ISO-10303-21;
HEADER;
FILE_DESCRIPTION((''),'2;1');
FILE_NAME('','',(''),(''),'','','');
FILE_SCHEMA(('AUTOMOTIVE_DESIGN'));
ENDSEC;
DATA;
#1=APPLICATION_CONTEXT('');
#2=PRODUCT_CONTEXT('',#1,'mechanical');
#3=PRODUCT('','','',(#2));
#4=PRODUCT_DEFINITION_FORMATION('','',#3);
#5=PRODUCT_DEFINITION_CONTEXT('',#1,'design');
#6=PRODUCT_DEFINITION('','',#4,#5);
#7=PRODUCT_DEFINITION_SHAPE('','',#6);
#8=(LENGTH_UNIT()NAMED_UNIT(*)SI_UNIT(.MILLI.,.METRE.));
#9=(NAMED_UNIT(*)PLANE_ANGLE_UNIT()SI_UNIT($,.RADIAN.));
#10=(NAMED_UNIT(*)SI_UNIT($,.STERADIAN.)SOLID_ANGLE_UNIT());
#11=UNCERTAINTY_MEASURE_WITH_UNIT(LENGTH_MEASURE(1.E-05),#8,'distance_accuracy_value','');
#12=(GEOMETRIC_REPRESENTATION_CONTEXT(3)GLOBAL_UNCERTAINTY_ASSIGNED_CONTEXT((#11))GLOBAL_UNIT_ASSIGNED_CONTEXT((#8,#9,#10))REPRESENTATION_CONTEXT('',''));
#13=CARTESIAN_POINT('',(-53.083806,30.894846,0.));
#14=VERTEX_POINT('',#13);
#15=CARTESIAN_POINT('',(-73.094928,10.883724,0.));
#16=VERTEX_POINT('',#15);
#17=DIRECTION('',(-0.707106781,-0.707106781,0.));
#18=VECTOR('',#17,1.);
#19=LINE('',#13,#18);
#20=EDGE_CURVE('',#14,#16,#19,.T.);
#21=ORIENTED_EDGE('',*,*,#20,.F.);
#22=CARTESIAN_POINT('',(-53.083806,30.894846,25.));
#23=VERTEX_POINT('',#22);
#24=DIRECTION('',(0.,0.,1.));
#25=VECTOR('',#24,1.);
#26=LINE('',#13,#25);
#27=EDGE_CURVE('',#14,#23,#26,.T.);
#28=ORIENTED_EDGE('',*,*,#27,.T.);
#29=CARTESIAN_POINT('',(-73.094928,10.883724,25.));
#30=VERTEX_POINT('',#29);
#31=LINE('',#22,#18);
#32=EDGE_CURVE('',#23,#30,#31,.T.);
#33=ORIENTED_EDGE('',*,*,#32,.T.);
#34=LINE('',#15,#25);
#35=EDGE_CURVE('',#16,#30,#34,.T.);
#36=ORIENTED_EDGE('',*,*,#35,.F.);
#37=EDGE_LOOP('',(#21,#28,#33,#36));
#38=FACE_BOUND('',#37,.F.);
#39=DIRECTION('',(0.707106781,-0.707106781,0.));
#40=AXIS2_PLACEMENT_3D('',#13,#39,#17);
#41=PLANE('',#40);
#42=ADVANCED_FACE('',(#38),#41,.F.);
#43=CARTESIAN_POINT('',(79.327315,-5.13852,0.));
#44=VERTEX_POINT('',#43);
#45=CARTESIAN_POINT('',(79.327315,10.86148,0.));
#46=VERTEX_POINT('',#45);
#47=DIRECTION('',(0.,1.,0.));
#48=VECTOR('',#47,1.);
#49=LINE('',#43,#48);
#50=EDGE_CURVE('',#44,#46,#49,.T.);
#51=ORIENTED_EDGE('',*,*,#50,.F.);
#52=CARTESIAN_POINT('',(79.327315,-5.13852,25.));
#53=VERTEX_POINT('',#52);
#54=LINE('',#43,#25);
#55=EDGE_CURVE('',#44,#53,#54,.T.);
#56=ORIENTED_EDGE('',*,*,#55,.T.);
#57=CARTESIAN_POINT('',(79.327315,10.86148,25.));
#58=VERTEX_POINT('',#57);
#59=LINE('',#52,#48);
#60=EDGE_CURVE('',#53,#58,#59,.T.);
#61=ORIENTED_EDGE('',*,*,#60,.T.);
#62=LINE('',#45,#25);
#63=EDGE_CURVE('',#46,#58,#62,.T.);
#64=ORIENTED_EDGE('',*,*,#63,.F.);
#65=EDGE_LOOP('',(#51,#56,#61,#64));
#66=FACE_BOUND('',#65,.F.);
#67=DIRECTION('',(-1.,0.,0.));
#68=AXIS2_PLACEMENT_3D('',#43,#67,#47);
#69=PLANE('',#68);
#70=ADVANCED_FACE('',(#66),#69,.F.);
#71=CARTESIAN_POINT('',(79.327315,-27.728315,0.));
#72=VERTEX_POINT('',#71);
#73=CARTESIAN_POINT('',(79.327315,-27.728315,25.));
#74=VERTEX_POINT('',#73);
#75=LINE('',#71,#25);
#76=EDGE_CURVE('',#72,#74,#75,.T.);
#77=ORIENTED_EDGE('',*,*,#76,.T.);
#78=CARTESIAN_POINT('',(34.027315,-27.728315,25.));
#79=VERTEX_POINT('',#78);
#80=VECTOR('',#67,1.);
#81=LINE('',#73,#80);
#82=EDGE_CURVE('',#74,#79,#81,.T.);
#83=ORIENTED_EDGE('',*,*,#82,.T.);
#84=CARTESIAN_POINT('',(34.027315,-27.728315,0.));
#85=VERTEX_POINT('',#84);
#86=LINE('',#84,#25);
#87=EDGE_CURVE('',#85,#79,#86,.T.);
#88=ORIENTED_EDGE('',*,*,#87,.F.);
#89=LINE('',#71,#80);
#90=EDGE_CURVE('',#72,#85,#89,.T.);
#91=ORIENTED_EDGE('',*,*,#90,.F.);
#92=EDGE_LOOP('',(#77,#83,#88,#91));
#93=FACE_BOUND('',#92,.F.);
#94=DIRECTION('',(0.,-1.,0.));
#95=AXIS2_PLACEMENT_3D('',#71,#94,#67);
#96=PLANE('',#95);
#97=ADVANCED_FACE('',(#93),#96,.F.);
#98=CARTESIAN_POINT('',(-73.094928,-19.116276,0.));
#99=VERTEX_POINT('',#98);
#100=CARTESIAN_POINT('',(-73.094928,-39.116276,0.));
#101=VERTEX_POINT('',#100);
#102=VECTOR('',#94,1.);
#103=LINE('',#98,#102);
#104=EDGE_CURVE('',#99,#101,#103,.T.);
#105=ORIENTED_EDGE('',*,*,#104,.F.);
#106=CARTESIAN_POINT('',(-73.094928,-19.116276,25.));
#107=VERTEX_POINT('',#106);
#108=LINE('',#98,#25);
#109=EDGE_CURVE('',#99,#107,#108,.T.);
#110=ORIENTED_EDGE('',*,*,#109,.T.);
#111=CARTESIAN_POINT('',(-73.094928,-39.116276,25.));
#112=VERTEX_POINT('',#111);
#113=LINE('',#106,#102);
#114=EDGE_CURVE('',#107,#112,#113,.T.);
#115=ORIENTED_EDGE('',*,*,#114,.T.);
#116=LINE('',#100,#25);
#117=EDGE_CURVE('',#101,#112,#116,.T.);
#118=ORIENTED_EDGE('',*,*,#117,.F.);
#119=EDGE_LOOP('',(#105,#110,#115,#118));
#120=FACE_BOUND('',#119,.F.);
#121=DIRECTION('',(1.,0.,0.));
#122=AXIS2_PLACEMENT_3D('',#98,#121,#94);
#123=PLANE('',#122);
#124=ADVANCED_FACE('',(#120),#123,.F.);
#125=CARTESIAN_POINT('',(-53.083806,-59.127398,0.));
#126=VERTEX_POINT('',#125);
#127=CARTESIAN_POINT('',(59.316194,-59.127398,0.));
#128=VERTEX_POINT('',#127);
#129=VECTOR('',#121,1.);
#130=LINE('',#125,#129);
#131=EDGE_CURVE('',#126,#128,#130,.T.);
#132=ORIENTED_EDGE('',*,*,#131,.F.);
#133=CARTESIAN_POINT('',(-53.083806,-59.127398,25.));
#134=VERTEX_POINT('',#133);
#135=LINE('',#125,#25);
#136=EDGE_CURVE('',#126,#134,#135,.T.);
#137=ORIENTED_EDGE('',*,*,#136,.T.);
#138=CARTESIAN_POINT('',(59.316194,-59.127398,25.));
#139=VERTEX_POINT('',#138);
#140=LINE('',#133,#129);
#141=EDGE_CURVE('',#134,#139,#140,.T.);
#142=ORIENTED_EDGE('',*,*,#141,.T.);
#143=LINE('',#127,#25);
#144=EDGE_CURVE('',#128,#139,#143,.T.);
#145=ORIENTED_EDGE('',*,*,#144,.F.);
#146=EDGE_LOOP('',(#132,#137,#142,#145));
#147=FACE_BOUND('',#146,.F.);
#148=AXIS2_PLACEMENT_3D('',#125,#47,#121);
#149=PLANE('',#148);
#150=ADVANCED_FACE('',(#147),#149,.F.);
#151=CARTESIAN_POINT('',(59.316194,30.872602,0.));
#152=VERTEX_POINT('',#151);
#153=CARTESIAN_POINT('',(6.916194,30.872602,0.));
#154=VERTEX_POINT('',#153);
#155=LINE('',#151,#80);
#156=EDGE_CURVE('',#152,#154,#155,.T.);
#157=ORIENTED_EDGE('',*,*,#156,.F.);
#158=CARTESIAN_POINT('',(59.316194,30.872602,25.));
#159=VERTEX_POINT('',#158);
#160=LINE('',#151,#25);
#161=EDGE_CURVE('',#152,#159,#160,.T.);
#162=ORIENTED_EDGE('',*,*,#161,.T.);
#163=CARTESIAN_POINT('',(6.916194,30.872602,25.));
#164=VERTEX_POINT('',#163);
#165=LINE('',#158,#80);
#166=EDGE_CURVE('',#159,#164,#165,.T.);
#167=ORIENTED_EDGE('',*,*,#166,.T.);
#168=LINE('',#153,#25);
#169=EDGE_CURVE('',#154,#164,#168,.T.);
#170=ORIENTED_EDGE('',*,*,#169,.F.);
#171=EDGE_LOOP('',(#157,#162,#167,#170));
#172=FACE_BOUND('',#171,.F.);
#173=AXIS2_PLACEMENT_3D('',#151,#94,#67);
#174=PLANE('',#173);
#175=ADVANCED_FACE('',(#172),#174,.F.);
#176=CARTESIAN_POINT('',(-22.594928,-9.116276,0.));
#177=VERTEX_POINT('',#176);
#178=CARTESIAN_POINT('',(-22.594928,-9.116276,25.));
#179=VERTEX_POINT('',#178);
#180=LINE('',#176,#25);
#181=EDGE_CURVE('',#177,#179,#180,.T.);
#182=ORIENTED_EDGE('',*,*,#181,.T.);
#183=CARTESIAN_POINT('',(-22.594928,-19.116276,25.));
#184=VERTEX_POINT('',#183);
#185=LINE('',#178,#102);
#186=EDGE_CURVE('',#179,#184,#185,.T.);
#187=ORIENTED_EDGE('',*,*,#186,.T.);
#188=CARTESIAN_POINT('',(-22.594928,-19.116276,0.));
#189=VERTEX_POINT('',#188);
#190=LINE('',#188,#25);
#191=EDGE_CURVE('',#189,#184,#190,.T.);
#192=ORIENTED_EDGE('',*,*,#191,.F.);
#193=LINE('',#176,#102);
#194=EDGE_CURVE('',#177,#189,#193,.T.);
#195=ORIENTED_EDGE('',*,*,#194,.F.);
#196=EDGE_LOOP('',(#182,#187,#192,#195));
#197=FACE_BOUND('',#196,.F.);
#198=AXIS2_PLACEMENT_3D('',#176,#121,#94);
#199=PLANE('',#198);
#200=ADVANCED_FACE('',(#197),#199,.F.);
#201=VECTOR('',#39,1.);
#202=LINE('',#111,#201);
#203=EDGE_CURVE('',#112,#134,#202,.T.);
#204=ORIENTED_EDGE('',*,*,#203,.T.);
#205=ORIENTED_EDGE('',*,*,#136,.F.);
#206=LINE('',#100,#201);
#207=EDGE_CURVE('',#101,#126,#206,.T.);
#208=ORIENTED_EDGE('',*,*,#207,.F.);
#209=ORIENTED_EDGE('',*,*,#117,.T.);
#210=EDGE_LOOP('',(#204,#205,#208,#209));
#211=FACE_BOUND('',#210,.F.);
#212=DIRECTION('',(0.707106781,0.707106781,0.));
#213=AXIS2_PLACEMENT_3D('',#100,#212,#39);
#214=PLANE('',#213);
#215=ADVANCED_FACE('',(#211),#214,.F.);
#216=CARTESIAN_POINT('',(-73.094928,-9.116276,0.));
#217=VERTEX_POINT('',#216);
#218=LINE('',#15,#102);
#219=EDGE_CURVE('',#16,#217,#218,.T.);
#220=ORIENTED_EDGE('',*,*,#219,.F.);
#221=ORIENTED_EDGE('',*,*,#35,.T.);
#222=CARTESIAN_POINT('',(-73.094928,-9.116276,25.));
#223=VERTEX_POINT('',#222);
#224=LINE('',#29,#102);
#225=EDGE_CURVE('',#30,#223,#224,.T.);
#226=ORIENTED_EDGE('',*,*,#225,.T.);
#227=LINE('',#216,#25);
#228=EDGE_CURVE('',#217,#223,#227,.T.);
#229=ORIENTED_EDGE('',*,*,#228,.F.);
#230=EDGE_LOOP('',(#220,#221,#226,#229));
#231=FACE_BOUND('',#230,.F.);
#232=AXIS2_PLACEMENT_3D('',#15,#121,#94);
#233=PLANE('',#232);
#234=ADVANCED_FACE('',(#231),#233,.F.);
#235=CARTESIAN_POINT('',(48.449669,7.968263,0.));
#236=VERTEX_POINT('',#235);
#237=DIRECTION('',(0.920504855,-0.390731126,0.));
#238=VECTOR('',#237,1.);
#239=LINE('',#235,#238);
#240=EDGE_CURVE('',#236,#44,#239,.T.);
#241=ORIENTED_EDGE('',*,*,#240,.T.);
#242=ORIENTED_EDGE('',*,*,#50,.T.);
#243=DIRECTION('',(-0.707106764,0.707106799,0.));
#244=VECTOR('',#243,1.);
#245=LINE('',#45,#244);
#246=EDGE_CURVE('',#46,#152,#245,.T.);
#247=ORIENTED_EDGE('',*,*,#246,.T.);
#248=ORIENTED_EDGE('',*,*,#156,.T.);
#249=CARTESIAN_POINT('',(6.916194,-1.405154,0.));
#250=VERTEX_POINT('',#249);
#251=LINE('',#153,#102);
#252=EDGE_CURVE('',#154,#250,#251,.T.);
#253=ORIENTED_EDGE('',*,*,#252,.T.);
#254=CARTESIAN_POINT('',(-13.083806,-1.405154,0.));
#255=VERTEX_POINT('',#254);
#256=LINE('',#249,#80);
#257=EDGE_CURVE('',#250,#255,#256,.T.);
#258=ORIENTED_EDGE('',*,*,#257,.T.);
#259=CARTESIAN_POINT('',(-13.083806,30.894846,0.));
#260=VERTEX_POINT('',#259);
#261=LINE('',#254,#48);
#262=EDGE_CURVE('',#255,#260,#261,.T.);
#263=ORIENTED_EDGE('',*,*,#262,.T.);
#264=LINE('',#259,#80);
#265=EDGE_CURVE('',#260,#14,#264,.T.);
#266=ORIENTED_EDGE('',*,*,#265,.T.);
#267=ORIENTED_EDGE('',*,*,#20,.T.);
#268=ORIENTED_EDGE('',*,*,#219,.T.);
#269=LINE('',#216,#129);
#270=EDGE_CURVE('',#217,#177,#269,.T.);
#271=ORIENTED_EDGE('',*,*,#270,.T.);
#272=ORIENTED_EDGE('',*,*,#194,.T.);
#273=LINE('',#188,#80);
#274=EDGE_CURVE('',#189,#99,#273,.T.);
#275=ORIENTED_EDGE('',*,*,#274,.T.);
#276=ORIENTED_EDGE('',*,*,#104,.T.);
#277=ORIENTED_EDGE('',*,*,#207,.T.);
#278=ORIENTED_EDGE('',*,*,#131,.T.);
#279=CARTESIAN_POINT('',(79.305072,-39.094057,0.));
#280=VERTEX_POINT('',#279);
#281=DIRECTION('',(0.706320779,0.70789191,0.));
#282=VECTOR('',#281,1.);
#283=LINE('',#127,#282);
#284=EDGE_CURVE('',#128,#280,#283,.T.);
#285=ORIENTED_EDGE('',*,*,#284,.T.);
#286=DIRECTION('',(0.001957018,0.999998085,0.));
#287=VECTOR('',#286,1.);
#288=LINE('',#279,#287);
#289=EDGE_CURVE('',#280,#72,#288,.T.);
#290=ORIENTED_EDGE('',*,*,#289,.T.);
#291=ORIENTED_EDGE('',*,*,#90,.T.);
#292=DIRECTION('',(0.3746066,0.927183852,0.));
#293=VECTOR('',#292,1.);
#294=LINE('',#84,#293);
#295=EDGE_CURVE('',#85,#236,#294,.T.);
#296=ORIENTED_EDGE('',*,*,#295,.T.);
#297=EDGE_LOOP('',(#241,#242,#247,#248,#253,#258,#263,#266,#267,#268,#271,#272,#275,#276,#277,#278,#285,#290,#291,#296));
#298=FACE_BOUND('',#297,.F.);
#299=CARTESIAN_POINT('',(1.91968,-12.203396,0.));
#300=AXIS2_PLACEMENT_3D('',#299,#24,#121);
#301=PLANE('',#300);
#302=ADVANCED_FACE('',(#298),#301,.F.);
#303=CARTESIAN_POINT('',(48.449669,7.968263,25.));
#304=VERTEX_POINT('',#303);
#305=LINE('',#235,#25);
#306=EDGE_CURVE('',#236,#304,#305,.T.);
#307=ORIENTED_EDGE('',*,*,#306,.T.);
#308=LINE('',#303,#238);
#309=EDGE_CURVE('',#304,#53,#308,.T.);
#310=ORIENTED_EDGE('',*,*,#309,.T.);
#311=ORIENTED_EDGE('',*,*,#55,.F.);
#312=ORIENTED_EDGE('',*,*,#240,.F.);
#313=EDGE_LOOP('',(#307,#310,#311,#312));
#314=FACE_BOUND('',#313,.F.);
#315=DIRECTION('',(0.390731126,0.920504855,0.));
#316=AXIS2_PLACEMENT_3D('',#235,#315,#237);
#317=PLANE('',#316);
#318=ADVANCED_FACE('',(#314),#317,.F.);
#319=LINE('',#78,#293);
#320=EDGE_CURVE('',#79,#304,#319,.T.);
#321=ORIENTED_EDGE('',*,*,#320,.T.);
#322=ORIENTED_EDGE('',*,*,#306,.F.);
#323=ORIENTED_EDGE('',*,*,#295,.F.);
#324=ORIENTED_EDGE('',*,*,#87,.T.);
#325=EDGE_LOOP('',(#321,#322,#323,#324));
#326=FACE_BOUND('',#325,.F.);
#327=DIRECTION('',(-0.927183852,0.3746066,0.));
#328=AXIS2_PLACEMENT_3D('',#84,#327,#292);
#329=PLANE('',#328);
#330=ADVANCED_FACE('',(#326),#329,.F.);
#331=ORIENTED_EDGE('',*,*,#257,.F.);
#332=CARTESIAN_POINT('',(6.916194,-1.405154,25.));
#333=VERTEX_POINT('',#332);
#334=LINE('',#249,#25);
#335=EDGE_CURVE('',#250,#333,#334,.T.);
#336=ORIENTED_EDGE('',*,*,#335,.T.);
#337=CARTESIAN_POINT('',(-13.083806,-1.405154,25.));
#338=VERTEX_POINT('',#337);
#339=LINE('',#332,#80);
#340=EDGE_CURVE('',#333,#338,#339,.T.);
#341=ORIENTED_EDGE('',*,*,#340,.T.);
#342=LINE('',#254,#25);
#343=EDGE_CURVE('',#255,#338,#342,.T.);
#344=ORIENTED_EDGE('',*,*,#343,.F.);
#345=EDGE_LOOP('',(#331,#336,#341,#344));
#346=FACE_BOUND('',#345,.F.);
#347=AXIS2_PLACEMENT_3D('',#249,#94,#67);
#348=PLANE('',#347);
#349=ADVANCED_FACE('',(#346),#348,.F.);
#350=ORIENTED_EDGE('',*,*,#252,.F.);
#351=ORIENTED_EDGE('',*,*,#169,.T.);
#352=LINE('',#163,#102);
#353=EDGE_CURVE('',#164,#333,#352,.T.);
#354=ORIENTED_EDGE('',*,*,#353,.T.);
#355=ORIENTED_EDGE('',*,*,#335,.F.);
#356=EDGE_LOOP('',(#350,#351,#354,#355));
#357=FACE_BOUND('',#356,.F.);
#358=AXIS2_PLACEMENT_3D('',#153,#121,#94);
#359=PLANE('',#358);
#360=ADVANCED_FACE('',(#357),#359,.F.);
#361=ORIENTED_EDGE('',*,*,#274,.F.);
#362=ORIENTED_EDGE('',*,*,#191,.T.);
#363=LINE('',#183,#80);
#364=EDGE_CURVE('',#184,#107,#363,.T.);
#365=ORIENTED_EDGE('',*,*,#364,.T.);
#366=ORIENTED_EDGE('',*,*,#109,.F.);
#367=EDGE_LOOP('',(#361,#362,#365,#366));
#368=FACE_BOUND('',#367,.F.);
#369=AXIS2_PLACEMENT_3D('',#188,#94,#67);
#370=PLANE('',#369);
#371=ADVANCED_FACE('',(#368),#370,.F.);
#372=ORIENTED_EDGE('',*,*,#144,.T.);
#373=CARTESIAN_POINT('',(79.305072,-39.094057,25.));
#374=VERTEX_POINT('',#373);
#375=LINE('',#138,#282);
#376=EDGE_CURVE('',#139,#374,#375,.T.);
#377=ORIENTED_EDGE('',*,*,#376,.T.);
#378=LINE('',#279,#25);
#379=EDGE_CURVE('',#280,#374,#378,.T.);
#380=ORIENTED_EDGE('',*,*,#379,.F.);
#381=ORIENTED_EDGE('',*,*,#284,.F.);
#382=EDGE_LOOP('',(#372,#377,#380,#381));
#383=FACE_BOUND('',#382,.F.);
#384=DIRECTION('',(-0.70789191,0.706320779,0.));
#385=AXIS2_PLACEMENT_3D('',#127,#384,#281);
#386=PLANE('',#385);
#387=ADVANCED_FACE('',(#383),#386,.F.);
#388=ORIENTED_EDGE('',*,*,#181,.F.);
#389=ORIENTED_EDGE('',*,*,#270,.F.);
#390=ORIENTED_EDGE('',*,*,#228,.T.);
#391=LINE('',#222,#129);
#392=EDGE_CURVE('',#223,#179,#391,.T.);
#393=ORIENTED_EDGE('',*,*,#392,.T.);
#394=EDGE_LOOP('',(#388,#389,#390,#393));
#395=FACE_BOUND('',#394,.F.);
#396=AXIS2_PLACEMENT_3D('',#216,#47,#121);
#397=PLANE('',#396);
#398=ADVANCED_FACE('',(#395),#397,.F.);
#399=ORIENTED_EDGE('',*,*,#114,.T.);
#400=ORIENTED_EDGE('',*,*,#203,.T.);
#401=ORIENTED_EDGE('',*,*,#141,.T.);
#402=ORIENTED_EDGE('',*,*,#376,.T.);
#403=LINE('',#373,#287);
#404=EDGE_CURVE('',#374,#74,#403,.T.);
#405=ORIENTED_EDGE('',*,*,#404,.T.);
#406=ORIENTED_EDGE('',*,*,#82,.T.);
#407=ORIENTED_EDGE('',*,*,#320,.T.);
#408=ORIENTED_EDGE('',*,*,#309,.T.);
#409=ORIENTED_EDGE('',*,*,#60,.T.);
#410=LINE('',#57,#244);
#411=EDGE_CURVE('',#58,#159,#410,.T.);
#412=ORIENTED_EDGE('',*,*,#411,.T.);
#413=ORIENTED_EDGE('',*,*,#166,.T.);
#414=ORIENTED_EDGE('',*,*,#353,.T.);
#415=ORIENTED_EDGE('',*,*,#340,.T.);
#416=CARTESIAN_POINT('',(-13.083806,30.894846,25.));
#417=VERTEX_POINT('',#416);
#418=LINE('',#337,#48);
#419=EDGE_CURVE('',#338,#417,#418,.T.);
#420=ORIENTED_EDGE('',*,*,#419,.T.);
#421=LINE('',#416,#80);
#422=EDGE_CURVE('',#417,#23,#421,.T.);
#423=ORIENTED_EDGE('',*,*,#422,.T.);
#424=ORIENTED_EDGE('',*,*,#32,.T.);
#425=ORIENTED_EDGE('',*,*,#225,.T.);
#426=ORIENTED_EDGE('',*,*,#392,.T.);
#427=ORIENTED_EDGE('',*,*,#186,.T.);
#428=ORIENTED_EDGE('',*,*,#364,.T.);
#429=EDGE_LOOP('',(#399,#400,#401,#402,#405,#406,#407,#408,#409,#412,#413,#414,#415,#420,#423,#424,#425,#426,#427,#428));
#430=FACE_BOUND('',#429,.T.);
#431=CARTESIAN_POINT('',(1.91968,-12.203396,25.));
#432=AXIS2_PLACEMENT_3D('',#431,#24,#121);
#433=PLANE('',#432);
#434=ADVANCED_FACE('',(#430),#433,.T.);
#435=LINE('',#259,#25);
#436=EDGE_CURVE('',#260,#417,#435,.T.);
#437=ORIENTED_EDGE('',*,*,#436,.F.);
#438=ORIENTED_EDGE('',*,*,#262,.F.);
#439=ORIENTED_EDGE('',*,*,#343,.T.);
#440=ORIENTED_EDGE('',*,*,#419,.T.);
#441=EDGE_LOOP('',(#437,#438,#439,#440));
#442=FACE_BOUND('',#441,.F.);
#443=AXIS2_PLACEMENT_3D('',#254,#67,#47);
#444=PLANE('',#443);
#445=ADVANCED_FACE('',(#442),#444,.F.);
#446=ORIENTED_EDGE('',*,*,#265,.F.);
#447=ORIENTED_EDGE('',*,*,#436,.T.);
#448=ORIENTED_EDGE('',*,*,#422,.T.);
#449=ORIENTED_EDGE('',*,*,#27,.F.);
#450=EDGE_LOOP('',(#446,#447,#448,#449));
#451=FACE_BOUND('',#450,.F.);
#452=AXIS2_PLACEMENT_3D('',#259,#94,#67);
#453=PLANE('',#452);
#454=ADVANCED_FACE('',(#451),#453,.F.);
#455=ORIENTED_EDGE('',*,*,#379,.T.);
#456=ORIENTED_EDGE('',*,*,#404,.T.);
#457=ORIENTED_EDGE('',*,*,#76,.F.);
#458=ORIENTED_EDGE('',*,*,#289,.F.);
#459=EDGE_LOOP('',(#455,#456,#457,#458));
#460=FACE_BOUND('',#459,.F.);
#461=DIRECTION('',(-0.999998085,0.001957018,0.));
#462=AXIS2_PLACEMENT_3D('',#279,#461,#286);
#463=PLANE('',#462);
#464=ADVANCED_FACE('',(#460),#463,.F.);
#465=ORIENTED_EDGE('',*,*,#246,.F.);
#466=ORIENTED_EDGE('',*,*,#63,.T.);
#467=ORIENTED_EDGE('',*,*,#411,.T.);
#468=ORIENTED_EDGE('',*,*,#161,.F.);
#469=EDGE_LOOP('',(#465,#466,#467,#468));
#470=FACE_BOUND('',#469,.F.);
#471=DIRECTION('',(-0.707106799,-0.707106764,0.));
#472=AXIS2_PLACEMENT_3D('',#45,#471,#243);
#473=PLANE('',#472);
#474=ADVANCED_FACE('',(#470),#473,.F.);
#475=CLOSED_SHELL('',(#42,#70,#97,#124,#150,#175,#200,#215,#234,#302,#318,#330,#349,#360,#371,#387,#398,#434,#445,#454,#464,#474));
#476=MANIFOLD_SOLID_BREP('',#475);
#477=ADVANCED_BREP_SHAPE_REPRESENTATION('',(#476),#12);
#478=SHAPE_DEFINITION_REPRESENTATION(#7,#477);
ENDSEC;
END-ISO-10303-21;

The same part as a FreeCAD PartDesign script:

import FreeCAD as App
import Part
import Sketcher

V = App.Vector
Q = App.Units.Quantity

doc = App.newDocument("Part")
body = doc.addObject("PartDesign::Body", "Body")

sketch1 = body.newObject("Sketcher::SketchObject", "Sketch")
sketch1.AttachmentSupport = (doc.getObject("XY_Plane"), [""])
sketch1.MapMode = "FlatFace"
sketch1.addGeometry([
    Part.LineSegment(V(-73.094928, -39.116276, 0), V(-53.083806, -59.127398, 0)),
    Part.LineSegment(V(-53.083806, -59.127398, 0), V(59.316194, -59.127398, 0)),
    Part.LineSegment(V(59.316194, -59.127398, 0), V(79.305072, -39.094057, 0)),
    Part.LineSegment(V(79.305072, -39.094057, 0), V(79.327315, -27.728315, 0)),
    Part.LineSegment(V(79.327315, -27.728315, 0), V(34.027315, -27.728315, 0)),
    Part.LineSegment(V(34.027315, -27.728315, 0), V(48.449669, 7.968263, 0)),
    Part.LineSegment(V(48.449669, 7.968263, 0), V(79.327315, -5.13852, 0)),
    Part.LineSegment(V(79.327315, -5.13852, 0), V(79.327315, 10.86148, 0)),
    Part.LineSegment(V(79.327315, 10.86148, 0), V(59.316194, 30.872602, 0)),
    Part.LineSegment(V(59.316194, 30.872602, 0), V(6.916194, 30.872602, 0)),
    Part.LineSegment(V(6.916194, 30.872602, 0), V(6.916194, -1.405154, 0)),
    Part.LineSegment(V(6.916194, -1.405154, 0), V(-13.083806, -1.405154, 0)),
    Part.LineSegment(V(-13.083806, -1.405154, 0), V(-13.083806, 30.894846, 0)),
    Part.LineSegment(V(-13.083806, 30.894846, 0), V(-53.083806, 30.894846, 0)),
    Part.LineSegment(V(-53.083806, 30.894846, 0), V(-73.094928, 10.883724, 0)),
    Part.LineSegment(V(-73.094928, 10.883724, 0), V(-73.094928, -9.116276, 0)),
    Part.LineSegment(V(-73.094928, -9.116276, 0), V(-22.594928, -9.116276, 0)),
    Part.LineSegment(V(-22.594928, -9.116276, 0), V(-22.594928, -19.116276, 0)),
    Part.LineSegment(V(-22.594928, -19.116276, 0), V(-73.094928, -19.116276, 0)),
    Part.LineSegment(V(-73.094928, -19.116276, 0), V(-73.094928, -39.116276, 0)),
], False)
sketch1.addConstraint([
    Sketcher.Constraint("Coincident", 0, 2, 1, 1),
    Sketcher.Constraint("Coincident", 1, 2, 2, 1),
    Sketcher.Constraint("Coincident", 2, 2, 3, 1),
    Sketcher.Constraint("Coincident", 3, 2, 4, 1),
    Sketcher.Constraint("Coincident", 4, 2, 5, 1),
    Sketcher.Constraint("Coincident", 5, 2, 6, 1),
    Sketcher.Constraint("Coincident", 6, 2, 7, 1),
    Sketcher.Constraint("Coincident", 7, 2, 8, 1),
    Sketcher.Constraint("Coincident", 8, 2, 9, 1),
    Sketcher.Constraint("Coincident", 9, 2, 10, 1),
    Sketcher.Constraint("Coincident", 10, 2, 11, 1),
    Sketcher.Constraint("Coincident", 11, 2, 12, 1),
    Sketcher.Constraint("Coincident", 12, 2, 13, 1),
    Sketcher.Constraint("Coincident", 13, 2, 14, 1),
    Sketcher.Constraint("Coincident", 14, 2, 15, 1),
    Sketcher.Constraint("Coincident", 15, 2, 16, 1),
    Sketcher.Constraint("Coincident", 16, 2, 17, 1),
    Sketcher.Constraint("Coincident", 17, 2, 18, 1),
    Sketcher.Constraint("Coincident", 18, 2, 19, 1),
    Sketcher.Constraint("Coincident", 19, 2, 0, 1),
    Sketcher.Constraint("Horizontal", 1),
    Sketcher.Constraint("Horizontal", 4),
    Sketcher.Constraint("Vertical", 7),
    Sketcher.Constraint("Horizontal", 9),
    Sketcher.Constraint("Vertical", 10),
    Sketcher.Constraint("Horizontal", 11),
    Sketcher.Constraint("Vertical", 12),
    Sketcher.Constraint("Horizontal", 13),
    Sketcher.Constraint("Vertical", 15),
    Sketcher.Constraint("Horizontal", 16),
    Sketcher.Constraint("Vertical", 17),
    Sketcher.Constraint("Horizontal", 18),
    Sketcher.Constraint("Vertical", 19),
    Sketcher.Constraint("Parallel", 0, 8),
    Sketcher.Constraint("Perpendicular", 8, 14),
    Sketcher.Constraint("Vertical", 3, 2, 6, 2),
    Sketcher.Constraint("Vertical", 1, 2, 8, 2),
    Sketcher.Constraint("Vertical", 0, 2, 13, 2),
    Sketcher.Constraint("Vertical", 15, 2, 18, 2),
    Sketcher.Constraint("Equal", 11, 15),
    Sketcher.Constraint("Equal", 15, 19),
    Sketcher.Constraint("Equal", 0, 2),
    Sketcher.Constraint("Equal", 2, 8),
    Sketcher.Constraint("Equal", 8, 14),
    Sketcher.Constraint("DistanceX", 11, 2, 11, 1, 20.0),
    Sketcher.Constraint("DistanceX", 13, 2, 13, 1, 40.0),
    Sketcher.Constraint("DistanceY", 7, 1, 7, 2, 16.0),
    Sketcher.Constraint("DistanceY", 17, 2, 17, 1, 10.0),
    Sketcher.Constraint("Angle", 5, Q("68 deg")),
    Sketcher.Constraint("Angle", 6, Q("-23 deg")),
    Sketcher.Constraint("DistanceX", 1, 1, 1, 2, 112.4),
    Sketcher.Constraint("DistanceX", 4, 2, 4, 1, 45.3),
    Sketcher.Constraint("DistanceX", 16, 1, 16, 2, 50.5),
    Sketcher.Constraint("DistanceY", 12, 1, 12, 2, 32.3),
    Sketcher.Constraint("Distance", 0, 28.3),
    Sketcher.Constraint("Distance", 5, 38.5),
    Sketcher.Constraint("DistanceY", 10, 2, 10, 1, 32.277756),
    Sketcher.Constraint("DistanceX", -1, 1, 2, 2, 79.305072),
    Sketcher.Constraint("DistanceX", -1, 1, 5, 2, 48.449669),
    Sketcher.Constraint("DistanceY", 6, 2, -1, 1, 5.13852),
])
pad1 = body.newObject("PartDesign::Pad", "Pad")
pad1.Profile = sketch1
pad1.Length = 25

doc.recompute()
